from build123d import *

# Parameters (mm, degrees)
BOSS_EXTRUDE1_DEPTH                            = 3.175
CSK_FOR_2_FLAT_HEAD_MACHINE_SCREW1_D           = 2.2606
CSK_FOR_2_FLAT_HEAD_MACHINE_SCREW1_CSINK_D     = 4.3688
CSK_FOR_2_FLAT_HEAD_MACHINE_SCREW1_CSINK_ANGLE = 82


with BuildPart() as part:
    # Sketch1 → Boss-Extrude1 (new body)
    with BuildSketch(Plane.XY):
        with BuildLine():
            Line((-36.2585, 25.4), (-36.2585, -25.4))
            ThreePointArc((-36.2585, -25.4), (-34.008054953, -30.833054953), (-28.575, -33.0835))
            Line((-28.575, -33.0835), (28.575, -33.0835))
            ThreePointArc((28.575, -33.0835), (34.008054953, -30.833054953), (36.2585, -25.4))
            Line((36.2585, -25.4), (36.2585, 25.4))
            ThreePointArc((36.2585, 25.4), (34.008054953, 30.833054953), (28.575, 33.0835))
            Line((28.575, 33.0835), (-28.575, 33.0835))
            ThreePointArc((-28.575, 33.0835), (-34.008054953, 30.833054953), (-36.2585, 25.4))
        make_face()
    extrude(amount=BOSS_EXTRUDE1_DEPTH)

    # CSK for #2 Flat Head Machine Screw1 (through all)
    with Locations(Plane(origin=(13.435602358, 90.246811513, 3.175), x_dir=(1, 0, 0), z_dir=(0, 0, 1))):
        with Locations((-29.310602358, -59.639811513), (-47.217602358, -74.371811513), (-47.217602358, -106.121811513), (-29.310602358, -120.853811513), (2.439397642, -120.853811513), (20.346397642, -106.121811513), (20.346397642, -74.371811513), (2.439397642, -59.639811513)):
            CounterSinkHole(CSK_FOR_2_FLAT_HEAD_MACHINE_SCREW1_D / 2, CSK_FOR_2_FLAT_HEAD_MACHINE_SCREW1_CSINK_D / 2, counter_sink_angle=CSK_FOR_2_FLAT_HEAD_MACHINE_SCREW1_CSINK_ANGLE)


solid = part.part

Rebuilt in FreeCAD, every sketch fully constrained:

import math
import FreeCAD as App
import Part
import Sketcher
from FreeCAD import Vector
Q = App.Units.Quantity

doc = App.newDocument("Part")
params = doc.addObject("Spreadsheet::Sheet", "Params")
for row, (alias, value) in enumerate([
    ("sketch1_height", "2 in"),
    ("sketch1_width", "2.25 in"),
    ("pad1_length", "0.125 in"),
    ("sketch2_diameter", "0.089 in"),
    ("hole_diameter", "0.089 in"),
    ("hole_csink_diameter", "0.172 in"),
], start=1):
    params.set(f"A{row}", alias)
    params.set(f"B{row}", "=" + value)
    params.setAlias(f"B{row}", alias)

body = doc.addObject("PartDesign::Body", "Body")

# Sketch on XY plane
sketch1 = body.newObject("Sketcher::SketchObject", "Sketch")
sketch1.AttachmentSupport = (doc.getObject("XY_Plane"), [""])
sketch1.MapMode = "FlatFace"
sketch1.addGeometry([
    Part.LineSegment(Vector(-36.2585, 25.4, 0), Vector(-36.2585, -25.4, 0)),  # 0
    Part.ArcOfCircle(Part.Circle(Vector(-28.575, -25.4, 0), Vector(0, 0, 1), 7.6835), math.radians(-180), math.radians(-90)),  # 1
    Part.LineSegment(Vector(-28.575, -33.0835, 0), Vector(28.575, -33.0835, 0)),  # 2
    Part.ArcOfCircle(Part.Circle(Vector(28.575, -25.4, 0), Vector(0, 0, 1), 7.6835), math.radians(-90), math.radians(0)),  # 3
    Part.LineSegment(Vector(36.2585, -25.4, 0), Vector(36.2585, 25.4, 0)),  # 4
    Part.ArcOfCircle(Part.Circle(Vector(28.575, 25.4, 0), Vector(0, 0, 1), 7.6835), math.radians(0), math.radians(90)),  # 5
    Part.LineSegment(Vector(28.575, 33.0835, 0), Vector(-28.575, 33.0835, 0)),  # 6
    Part.ArcOfCircle(Part.Circle(Vector(-28.575, 25.4, 0), Vector(0, 0, 1), 7.6835), math.radians(90), math.radians(180)),  # 7
], False)
sketch1.addConstraint([
    Sketcher.Constraint("Tangent", 0, 2, 1, 1),
    Sketcher.Constraint("Tangent", 1, 2, 2, 1),
    Sketcher.Constraint("Tangent", 2, 2, 3, 1),
    Sketcher.Constraint("Tangent", 3, 2, 4, 1),
    Sketcher.Constraint("Tangent", 4, 2, 5, 1),
    Sketcher.Constraint("Tangent", 5, 2, 6, 1),
    Sketcher.Constraint("Tangent", 6, 2, 7, 1),
    Sketcher.Constraint("Tangent", 7, 2, 0, 1),
    Sketcher.Constraint("Vertical", 0),
    Sketcher.Constraint("Horizontal", 2),
    Sketcher.Constraint("Vertical", 4),
    Sketcher.Constraint("Horizontal", 6),
    Sketcher.Constraint("Equal", 1, 3),
    Sketcher.Constraint("Equal", 3, 5),
    Sketcher.Constraint("Equal", 5, 7),
    Sketcher.Constraint("Symmetric", 1, 3, 5, 3, -1, 1),
    Sketcher.Constraint("DistanceY", 0, 2, 0, 1, Q("2 in")),
    Sketcher.Constraint("DistanceX", 2, 1, 2, 2, Q("2.25 in")),
    Sketcher.Constraint("Radius", 1, Q("0.3025 in")),
])
sketch1.setExpression("Constraints[16]", "Params.sketch1_height")
sketch1.setExpression("Constraints[17]", "Params.sketch1_width")
pad1 = body.newObject("PartDesign::Pad", "Pad")
pad1.Profile = sketch1
pad1.setExpression("Length", "Params.pad1_length")

# Sketch on XY plane
sketch2 = body.newObject("Sketcher::SketchObject", "Sketch001")
sketch2.AttachmentSupport = (doc.getObject("XY_Plane"), [""])
sketch2.MapMode = "FlatFace"
sketch2.AttachmentOffset = App.Placement(Vector(0, 0, 0.125 * 25.4), App.Rotation())
sketch2.addGeometry([
    Part.Circle(Vector(-15.875, 30.607, 0), Vector(0, 0, 1), 1.1303),  # 0
    Part.Circle(Vector(-33.782, 15.875, 0), Vector(0, 0, 1), 1.1303),  # 1
    Part.Circle(Vector(-33.782, -15.875, 0), Vector(0, 0, 1), 1.1303),  # 2
    Part.Circle(Vector(-15.875, -30.607, 0), Vector(0, 0, 1), 1.1303),  # 3
    Part.Circle(Vector(15.875, -30.607, 0), Vector(0, 0, 1), 1.1303),  # 4
    Part.Circle(Vector(33.782, -15.875, 0), Vector(0, 0, 1), 1.1303),  # 5
    Part.Circle(Vector(33.782, 15.875, 0), Vector(0, 0, 1), 1.1303),  # 6
    Part.Circle(Vector(15.875, 30.607, 0), Vector(0, 0, 1), 1.1303),  # 7
], False)
sketch2.addConstraint([
    Sketcher.Constraint("Equal", 0, 1),
    Sketcher.Constraint("Equal", 1, 2),
    Sketcher.Constraint("Equal", 2, 3),
    Sketcher.Constraint("Equal", 3, 4),
    Sketcher.Constraint("Equal", 4, 5),
    Sketcher.Constraint("Equal", 5, 6),
    Sketcher.Constraint("Equal", 6, 7),
    Sketcher.Constraint("Symmetric", 0, 3, 4, 3, -1, 1),
    Sketcher.Constraint("Symmetric", 1, 3, 5, 3, -1, 1),
    Sketcher.Constraint("Symmetric", 2, 3, 6, 3, -1, 1),
    Sketcher.Constraint("Symmetric", 3, 3, 7, 3, -1, 1),
    Sketcher.Constraint("Symmetric", 3, 3, 4, 3, -2),
    Sketcher.Constraint("Symmetric", 2, 3, 5, 3, -2),
    Sketcher.Constraint("Diameter", 0, Q("0.089 in")),
    Sketcher.Constraint("DistanceX", 1, 3, -1, 1, Q("1.33 in")),
    Sketcher.Constraint("DistanceY", 1, 3, 0, 3, Q("0.58 in")),
    Sketcher.Constraint("DistanceY", 2, 3, 1, 3, Q("1.25 in")),
    Sketcher.Constraint("DistanceX", 3, 3, 4, 3, Q("1.25 in")),
])
sketch2.setExpression("Constraints[13]", "Params.sketch2_diameter")
doc.recompute()
hole = body.newObject("PartDesign::Hole", "Hole")
hole.Profile = sketch2
hole.ThreadType = "None"
hole.setExpression("Diameter", "Params.hole_diameter")
hole.DepthType = "ThroughAll"
hole.HoleCutType = "Countersink"
hole.setExpression("HoleCutDiameter", "Params.hole_csink_diameter")
hole.HoleCutCountersinkAngle = 82

doc.recompute()
